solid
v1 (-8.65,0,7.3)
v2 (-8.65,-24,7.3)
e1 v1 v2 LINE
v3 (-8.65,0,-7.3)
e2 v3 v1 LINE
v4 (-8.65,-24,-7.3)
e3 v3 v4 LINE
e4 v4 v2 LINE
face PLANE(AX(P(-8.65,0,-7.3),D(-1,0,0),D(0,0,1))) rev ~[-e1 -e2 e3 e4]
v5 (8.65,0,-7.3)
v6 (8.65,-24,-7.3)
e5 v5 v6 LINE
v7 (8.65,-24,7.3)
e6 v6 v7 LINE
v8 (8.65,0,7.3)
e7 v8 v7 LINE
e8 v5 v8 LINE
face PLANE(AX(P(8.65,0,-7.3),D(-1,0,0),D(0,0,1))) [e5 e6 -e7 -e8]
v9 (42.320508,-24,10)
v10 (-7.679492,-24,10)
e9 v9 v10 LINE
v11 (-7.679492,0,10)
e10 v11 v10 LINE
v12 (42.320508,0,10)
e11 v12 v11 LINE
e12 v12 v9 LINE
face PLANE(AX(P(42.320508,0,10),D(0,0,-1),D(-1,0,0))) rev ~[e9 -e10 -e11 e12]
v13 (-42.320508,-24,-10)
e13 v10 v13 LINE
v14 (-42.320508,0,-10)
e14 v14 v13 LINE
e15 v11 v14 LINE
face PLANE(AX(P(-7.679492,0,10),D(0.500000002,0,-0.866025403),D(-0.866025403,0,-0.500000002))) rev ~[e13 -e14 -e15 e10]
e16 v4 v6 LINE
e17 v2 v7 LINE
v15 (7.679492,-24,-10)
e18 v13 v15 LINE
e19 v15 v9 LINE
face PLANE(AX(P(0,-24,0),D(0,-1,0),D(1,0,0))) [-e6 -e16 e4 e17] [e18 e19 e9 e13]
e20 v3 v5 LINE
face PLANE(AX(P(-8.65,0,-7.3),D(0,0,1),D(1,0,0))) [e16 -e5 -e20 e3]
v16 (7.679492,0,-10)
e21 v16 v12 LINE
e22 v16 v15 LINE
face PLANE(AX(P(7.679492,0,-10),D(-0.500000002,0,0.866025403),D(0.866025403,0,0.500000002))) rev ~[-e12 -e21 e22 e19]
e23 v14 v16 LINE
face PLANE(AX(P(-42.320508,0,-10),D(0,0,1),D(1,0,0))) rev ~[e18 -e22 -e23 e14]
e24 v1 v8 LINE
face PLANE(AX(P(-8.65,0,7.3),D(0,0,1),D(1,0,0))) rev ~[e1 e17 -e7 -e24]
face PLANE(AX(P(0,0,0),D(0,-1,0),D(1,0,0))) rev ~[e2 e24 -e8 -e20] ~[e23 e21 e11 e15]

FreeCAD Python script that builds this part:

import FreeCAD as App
import Part
import Sketcher

V = App.Vector
Q = App.Units.Quantity


def add_polygon(sketch, points):
    """Adds a closed chain of lines whose ends are joined by coincident constraints."""
    first, n = sketch.GeometryCount, len(points)
    for a, b in zip(points, points[1:] + points[:1]):
        sketch.addGeometry(Part.LineSegment(App.Vector(*a, 0), App.Vector(*b, 0)), False)
    for i in range(n):
        sketch.addConstraint(Sketcher.Constraint("Coincident", first + i, 2, first + (i + 1) % n, 1))

doc = App.newDocument("Part")
params = doc.addObject("Spreadsheet::Sheet", "Params")
for row, (alias, value) in enumerate([
    ("sketch1_width", "50 mm"),
    ("sketch1_length", "40 mm"),
    ("sketch1_width2", "17.3 mm"),
    ("sketch1_height", "14.6 mm"),
    ("pad1_length", "24 mm"),
], start=1):
    params.set(f"A{row}", alias)
    params.set(f"B{row}", "=" + value)
    params.setAlias(f"B{row}", alias)

body = doc.addObject("PartDesign::Body", "Body")

# Sketch on XZ plane
sketch1 = body.newObject("Sketcher::SketchObject", "Sketch")
sketch1.AttachmentSupport = (doc.getObject("XZ_Plane"), [""])
sketch1.MapMode = "FlatFace"
add_polygon(sketch1, [(42.320508, 10), (-7.679492, 10), (-42.320508, -10), (7.679492, -10)])  # lines 0-3
add_polygon(sketch1, [(8.65, -7.3), (-8.65, -7.3), (-8.65, 7.3), (8.65, 7.3)])  # lines 4-7
sketch1.addConstraint([
    Sketcher.Constraint("Horizontal", 0),
    Sketcher.Constraint("Horizontal", 2),
    Sketcher.Constraint("Horizontal", 4),
    Sketcher.Constraint("Vertical", 5),
    Sketcher.Constraint("Horizontal", 6),
    Sketcher.Constraint("Vertical", 7),
    Sketcher.Constraint("Symmetric", 0, 2, 2, 2, -1, 1),
    Sketcher.Constraint("Symmetric", 4, 2, 6, 2, -1, 1),
    Sketcher.Constraint("Parallel", 1, 3),
    Sketcher.Constraint("DistanceX", 0, 2, 0, 1, 50.0),
    Sketcher.Constraint("Angle", 1, Q("-150 deg")),
    Sketcher.Constraint("Distance", 1, 40.0),
    Sketcher.Constraint("DistanceX", 4, 2, 4, 1, 17.3),
    Sketcher.Constraint("DistanceY", 5, 1, 5, 2, 14.6),
])
sketch1.setExpression("Constraints[17]", "Params.sketch1_width")
sketch1.setExpression("Constraints[19]", "Params.sketch1_length")
sketch1.setExpression("Constraints[20]", "Params.sketch1_width2")
sketch1.setExpression("Constraints[21]", "Params.sketch1_height")
pad1 = body.newObject("PartDesign::Pad", "Pad")
pad1.Profile = sketch1
pad1.setExpression("Length", "Params.pad1_length")

doc.recompute()
